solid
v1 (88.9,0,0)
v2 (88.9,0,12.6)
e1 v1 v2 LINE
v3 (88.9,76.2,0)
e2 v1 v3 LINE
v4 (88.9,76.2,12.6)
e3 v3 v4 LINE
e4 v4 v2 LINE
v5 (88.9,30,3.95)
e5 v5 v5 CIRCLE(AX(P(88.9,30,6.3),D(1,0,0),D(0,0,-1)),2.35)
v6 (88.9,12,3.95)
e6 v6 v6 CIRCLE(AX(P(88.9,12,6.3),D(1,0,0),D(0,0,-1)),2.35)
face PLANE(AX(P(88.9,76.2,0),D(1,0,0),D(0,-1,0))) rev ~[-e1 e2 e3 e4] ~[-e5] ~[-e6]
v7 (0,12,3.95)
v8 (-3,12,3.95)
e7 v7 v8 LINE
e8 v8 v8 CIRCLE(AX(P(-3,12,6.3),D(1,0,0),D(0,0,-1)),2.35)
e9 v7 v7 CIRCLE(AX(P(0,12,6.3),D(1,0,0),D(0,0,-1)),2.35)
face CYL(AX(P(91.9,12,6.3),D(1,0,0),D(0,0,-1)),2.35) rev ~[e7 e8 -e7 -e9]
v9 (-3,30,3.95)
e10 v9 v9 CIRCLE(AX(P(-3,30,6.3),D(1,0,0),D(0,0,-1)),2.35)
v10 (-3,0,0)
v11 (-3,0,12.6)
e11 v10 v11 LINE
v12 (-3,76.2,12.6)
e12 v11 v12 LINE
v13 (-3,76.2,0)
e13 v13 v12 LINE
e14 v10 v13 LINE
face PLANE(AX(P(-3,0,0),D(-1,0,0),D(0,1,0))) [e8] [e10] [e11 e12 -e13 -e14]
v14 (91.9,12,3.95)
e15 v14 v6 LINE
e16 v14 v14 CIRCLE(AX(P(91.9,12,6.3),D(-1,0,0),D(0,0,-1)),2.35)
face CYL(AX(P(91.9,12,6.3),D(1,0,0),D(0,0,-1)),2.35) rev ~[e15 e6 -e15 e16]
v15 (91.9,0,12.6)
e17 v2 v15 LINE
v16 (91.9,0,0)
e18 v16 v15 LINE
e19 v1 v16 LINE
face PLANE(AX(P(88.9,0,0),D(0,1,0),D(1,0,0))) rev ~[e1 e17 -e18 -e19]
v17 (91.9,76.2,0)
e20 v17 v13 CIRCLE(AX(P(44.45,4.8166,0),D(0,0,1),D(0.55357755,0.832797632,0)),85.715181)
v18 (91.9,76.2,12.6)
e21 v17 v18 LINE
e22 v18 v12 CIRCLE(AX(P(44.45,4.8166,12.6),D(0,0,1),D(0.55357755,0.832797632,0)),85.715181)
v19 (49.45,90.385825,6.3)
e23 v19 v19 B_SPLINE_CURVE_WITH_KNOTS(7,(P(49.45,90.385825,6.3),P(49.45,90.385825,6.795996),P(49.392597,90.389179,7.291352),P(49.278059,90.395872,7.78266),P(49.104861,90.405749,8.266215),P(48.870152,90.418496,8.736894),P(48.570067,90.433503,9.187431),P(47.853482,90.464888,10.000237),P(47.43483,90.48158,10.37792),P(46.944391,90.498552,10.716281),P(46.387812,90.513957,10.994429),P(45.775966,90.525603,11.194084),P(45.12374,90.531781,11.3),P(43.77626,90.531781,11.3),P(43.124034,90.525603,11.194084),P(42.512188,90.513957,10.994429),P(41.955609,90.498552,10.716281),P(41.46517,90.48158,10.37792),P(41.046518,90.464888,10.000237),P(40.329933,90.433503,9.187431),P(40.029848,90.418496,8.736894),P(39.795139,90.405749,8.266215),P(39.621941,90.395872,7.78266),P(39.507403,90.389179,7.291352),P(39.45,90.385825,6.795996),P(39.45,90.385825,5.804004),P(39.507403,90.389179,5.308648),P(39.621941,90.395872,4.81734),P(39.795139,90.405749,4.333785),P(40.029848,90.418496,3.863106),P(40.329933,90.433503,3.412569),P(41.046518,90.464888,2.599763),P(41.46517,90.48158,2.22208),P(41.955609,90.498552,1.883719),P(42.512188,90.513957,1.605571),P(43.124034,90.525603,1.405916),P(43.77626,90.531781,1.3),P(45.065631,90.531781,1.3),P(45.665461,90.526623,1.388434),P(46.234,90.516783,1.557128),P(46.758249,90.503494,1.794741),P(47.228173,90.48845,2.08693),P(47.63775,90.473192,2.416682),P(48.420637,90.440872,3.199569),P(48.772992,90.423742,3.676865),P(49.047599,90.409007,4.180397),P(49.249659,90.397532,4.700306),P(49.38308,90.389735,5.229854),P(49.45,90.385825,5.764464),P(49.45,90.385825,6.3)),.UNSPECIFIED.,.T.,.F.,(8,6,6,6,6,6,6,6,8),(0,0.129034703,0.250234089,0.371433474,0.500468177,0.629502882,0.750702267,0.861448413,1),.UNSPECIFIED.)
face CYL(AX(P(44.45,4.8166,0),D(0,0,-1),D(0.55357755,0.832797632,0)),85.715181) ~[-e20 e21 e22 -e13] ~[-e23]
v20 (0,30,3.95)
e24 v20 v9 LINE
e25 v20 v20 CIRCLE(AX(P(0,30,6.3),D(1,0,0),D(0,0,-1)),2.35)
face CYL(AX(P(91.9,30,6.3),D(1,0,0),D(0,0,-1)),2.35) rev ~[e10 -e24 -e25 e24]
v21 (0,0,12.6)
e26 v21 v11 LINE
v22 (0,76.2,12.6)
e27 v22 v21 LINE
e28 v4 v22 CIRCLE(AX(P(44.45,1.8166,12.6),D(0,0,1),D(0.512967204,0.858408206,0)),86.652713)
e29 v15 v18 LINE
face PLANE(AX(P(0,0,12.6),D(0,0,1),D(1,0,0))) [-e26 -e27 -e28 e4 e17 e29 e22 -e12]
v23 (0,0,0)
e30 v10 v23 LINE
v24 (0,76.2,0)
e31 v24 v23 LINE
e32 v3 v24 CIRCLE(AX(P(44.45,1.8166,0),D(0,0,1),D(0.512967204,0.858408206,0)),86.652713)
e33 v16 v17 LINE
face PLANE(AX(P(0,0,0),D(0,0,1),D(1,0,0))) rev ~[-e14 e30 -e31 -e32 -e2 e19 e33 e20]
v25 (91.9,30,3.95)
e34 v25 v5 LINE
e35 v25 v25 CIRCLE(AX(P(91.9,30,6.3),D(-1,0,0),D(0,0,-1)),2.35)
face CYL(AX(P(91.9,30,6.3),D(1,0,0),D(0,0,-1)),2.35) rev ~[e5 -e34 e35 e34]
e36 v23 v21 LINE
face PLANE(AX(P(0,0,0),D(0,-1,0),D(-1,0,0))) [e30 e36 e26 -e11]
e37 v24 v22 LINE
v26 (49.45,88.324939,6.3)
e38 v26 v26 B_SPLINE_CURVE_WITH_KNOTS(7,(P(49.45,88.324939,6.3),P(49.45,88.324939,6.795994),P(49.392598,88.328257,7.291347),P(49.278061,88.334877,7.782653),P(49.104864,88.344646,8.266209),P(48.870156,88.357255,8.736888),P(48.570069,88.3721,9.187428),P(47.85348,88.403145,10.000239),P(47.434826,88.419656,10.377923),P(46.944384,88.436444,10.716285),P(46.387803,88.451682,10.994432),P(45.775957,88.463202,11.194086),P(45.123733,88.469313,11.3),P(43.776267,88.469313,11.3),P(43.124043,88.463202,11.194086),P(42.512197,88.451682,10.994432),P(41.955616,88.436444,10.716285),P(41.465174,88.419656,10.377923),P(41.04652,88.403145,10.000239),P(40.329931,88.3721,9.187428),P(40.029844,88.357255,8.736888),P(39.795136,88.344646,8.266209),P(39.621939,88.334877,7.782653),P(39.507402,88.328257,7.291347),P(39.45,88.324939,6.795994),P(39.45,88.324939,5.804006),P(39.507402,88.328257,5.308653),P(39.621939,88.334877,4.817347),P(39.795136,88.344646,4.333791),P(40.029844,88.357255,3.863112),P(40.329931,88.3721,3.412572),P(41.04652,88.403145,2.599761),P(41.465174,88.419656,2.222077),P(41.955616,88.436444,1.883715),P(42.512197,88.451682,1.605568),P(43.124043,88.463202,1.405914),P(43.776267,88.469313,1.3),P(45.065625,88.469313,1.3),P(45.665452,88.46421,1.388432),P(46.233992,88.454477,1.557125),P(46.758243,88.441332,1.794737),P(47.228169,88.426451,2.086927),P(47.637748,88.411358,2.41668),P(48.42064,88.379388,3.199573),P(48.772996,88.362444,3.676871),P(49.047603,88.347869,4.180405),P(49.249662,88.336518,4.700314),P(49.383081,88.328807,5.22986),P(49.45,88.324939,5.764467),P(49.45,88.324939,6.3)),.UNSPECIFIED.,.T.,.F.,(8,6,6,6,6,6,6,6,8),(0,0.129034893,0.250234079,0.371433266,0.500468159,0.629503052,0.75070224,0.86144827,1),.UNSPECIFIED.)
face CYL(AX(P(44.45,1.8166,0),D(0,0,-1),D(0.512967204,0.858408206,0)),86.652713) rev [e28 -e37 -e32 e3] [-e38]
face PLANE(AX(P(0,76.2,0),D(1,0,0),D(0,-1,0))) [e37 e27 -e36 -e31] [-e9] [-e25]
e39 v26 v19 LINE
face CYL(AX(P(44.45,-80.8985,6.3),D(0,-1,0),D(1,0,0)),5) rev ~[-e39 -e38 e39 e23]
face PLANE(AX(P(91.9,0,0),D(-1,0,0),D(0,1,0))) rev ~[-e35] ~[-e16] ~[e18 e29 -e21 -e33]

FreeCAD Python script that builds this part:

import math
import FreeCAD as App
import Part
import Sketcher
from FreeCAD import Vector

doc = App.newDocument("Part")
params = doc.addObject("Spreadsheet::Sheet", "Params")
for row, (alias, value) in enumerate([
    ("sketch1_width", "3 mm"),
    ("sketch1_height", "76.2 mm"),
    ("pad1_length", "12.6 mm"),
    ("sketch2_diameter", "4.7 mm"),
    ("sketch3_diameter", "10 mm"),
], start=1):
    params.set(f"A{row}", alias)
    params.set(f"B{row}", "=" + value)
    params.setAlias(f"B{row}", alias)

body = doc.addObject("PartDesign::Body", "Body")

# Sketch on XY plane
sketch1 = body.newObject("Sketcher::SketchObject", "Sketch")
sketch1.AttachmentSupport = (doc.getObject("XY_Plane"), [""])
sketch1.MapMode = "FlatFace"
sketch1.addGeometry([
    Part.LineSegment(Vector(0, 0, 0), Vector(0, 76.2, 0)),  # 0
    Part.ArcOfCircle(Part.Circle(Vector(44.5, 1.8, 0), Vector(0, 0, 1), 86.7), math.radians(59), math.radians(121)),  # 1
    Part.LineSegment(Vector(88.9, 76.2, 0), Vector(88.9, 0, 0)),  # 2
    Part.LineSegment(Vector(88.9, 0, 0), Vector(91.9, 0, 0)),  # 3
    Part.LineSegment(Vector(91.9, 0, 0), Vector(91.9, 76.2, 0)),  # 4
    Part.ArcOfCircle(Part.Circle(Vector(44.5, 4.8, 0), Vector(0, 0, 1), 85.7), math.radians(56), math.radians(124)),  # 5
    Part.LineSegment(Vector(-3, 76.2, 0), Vector(-3, 0, 0)),  # 6
    Part.LineSegment(Vector(-3, 0, 0), Vector(0, 0, 0)),  # 7
], False)
sketch1.addConstraint([
    Sketcher.Constraint("Coincident", 0, 2, 1, 2),
    Sketcher.Constraint("Coincident", 1, 1, 2, 1),
    Sketcher.Constraint("Coincident", 2, 2, 3, 1),
    Sketcher.Constraint("Coincident", 3, 2, 4, 1),
    Sketcher.Constraint("Coincident", 4, 2, 5, 1),
    Sketcher.Constraint("Coincident", 5, 2, 6, 1),
    Sketcher.Constraint("Coincident", 6, 2, 7, 1),
    Sketcher.Constraint("Coincident", 7, 2, 0, 1),
    Sketcher.Constraint("Vertical", 0),
    Sketcher.Constraint("Vertical", 2),
    Sketcher.Constraint("Horizontal", 3),
    Sketcher.Constraint("Vertical", 4),
    Sketcher.Constraint("Vertical", 6),
    Sketcher.Constraint("Horizontal", 7),
    Sketcher.Constraint("Coincident", 7, 2, -1, 1),
    Sketcher.Constraint("PointOnObject", 2, 2, -1),
    Sketcher.Constraint("Horizontal", 0, 2, 1, 1),
    Sketcher.Constraint("Horizontal", 1, 1, 4, 2),
    Sketcher.Constraint("Horizontal", 4, 2, 5, 2),
    Sketcher.Constraint("Vertical", 1, 3, 5, 3),
    Sketcher.Constraint("DistanceX", 3, 1, 3, 2, 3.0),
    Sketcher.Constraint("DistanceY", 0, 1, 0, 2, 76.2),
    Sketcher.Constraint("DistanceY", 1, 3, 5, 3, 3.0),
    Sketcher.Constraint("DistanceX", -1, 1, 1, 1, 88.9),
    Sketcher.Constraint("Radius", 1, 86.6527),
])
sketch1.setExpression("Constraints[20]", "Params.sketch1_width")
sketch1.setExpression("Constraints[21]", "Params.sketch1_height")
pad1 = body.newObject("PartDesign::Pad", "Pad")
pad1.Profile = sketch1
pad1.setExpression("Length", "Params.pad1_length")

# Sketch on YZ plane
sketch2 = body.newObject("Sketcher::SketchObject", "Sketch001")
sketch2.AttachmentSupport = (doc.getObject("YZ_Plane"), [""])
sketch2.MapMode = "FlatFace"
sketch2.AttachmentOffset = App.Placement(Vector(0, 0, 91.9), App.Rotation())
sketch2.addGeometry([
    Part.Circle(Vector(12, 6.3, 0), Vector(0, 0, 1), 2.4),
    Part.Circle(Vector(30, 6.3, 0), Vector(0, 0, 1), 2.4),
], False)
sketch2.addConstraint([
    Sketcher.Constraint("Equal", 0, 1),
    Sketcher.Constraint("Horizontal", 0, 3, 1, 3),
    Sketcher.Constraint("Diameter", 0, 4.7),
    Sketcher.Constraint("DistanceX", -1, 1, 0, 3, 12.0),
    Sketcher.Constraint("DistanceX", -1, 1, 1, 3, 30.0),
    Sketcher.Constraint("DistanceY", -1, 1, 0, 3, 6.3),
])
sketch2.setExpression("Constraints[2]", "Params.sketch2_diameter")
pocket1 = body.newObject("PartDesign::Pocket", "Pocket")
pocket1.Profile = sketch2
pocket1.Type = "ThroughAll"

# Sketch on XZ plane
sketch3 = body.newObject("Sketcher::SketchObject", "Sketch002")
sketch3.AttachmentSupport = (doc.getObject("XZ_Plane"), [""])
sketch3.MapMode = "FlatFace"
sketch3.AttachmentOffset = App.Placement(Vector(0, 0, 80.8985), App.Rotation())
sketch3.addGeometry(Part.Circle(Vector(44, 6, 0), Vector(0, 0, 1), 5), False)
sketch3.addConstraint([
    Sketcher.Constraint("Diameter", 0, 10.0),
    Sketcher.Constraint("DistanceY", -1, 1, 0, 3, 6.3),
    Sketcher.Constraint("DistanceX", -1, 1, 0, 3, 44.45),
])
sketch3.setExpression("Constraints[0]", "Params.sketch3_diameter")
pocket2 = body.newObject("PartDesign::Pocket", "Pocket001")
pocket2.Profile = sketch3
pocket2.Type = "ThroughAll"

doc.recompute()
